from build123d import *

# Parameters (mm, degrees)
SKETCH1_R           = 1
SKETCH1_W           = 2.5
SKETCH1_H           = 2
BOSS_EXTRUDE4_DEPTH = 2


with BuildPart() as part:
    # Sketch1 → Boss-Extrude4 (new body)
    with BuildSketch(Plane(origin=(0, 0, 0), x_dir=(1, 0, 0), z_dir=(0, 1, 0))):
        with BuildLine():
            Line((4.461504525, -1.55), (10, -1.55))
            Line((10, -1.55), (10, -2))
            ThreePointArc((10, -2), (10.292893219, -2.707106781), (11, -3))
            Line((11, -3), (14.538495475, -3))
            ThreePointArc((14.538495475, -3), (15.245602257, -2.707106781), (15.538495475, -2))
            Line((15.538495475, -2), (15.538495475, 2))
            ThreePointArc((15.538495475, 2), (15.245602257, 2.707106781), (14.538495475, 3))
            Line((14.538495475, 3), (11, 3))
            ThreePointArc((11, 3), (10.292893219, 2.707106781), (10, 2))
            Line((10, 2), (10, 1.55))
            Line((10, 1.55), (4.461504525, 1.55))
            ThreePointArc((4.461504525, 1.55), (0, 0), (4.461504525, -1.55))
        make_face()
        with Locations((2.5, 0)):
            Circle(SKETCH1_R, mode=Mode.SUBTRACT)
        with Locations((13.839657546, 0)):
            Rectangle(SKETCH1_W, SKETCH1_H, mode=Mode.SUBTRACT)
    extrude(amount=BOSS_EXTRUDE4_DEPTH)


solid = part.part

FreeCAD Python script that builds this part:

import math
import FreeCAD as App
import Part
import Sketcher


def add_polygon(sketch, points):
    """Adds a closed chain of lines whose ends are joined by coincident constraints."""
    first, n = sketch.GeometryCount, len(points)
    for a, b in zip(points, points[1:] + points[:1]):
        sketch.addGeometry(Part.LineSegment(App.Vector(*a, 0), App.Vector(*b, 0)), False)
    for i in range(n):
        sketch.addConstraint(Sketcher.Constraint("Coincident", first + i, 2, first + (i + 1) % n, 1))

doc = App.newDocument("Part")
body = doc.addObject("PartDesign::Body", "Body")

# Sketch on XZ plane
sketch1 = body.newObject("Sketcher::SketchObject", "Sketch")
sketch1.AttachmentSupport = (doc.getObject("XZ_Plane"), [""])
sketch1.MapMode = "FlatFace"
sketch1.addGeometry(Part.LineSegment(App.Vector(4.461505, 1.55, 0), App.Vector(10, 1.55, 0)), False)  # 0
sketch1.addGeometry(Part.LineSegment(App.Vector(10, 1.55, 0), App.Vector(10, 2, 0)), False)  # 1
sketch1.addGeometry(Part.ArcOfCircle(Part.Circle(App.Vector(11, 2, 0), App.Vector(0, 0, 1), 1), math.radians(90), math.radians(180)), False)  # 2
sketch1.addGeometry(Part.LineSegment(App.Vector(11, 3, 0), App.Vector(14.538495, 3, 0)), False)  # 3
sketch1.addGeometry(Part.ArcOfCircle(Part.Circle(App.Vector(14.538495, 2, 0), App.Vector(0, 0, 1), 1), math.radians(0), math.radians(90)), False)  # 4
sketch1.addGeometry(Part.LineSegment(App.Vector(15.538495, 2, 0), App.Vector(15.538495, -2, 0)), False)  # 5
sketch1.addGeometry(Part.ArcOfCircle(Part.Circle(App.Vector(14.538495, -2, 0), App.Vector(0, 0, 1), 1), math.radians(-90), math.radians(0)), False)  # 6
sketch1.addGeometry(Part.LineSegment(App.Vector(14.538495, -3, 0), App.Vector(11, -3, 0)), False)  # 7
sketch1.addGeometry(Part.ArcOfCircle(Part.Circle(App.Vector(11, -2, 0), App.Vector(0, 0, 1), 1), math.radians(-180), math.radians(-90)), False)  # 8
sketch1.addGeometry(Part.LineSegment(App.Vector(10, -2, 0), App.Vector(10, -1.55, 0)), False)  # 9
sketch1.addGeometry(Part.LineSegment(App.Vector(10, -1.55, 0), App.Vector(4.461505, -1.55, 0)), False)  # 10
sketch1.addGeometry(Part.ArcOfCircle(Part.Circle(App.Vector(2.5, 0, 0), App.Vector(0, 0, 1), 2.5), math.radians(38.316134), math.radians(321.683866)), False)  # 11
sketch1.addGeometry(Part.Circle(App.Vector(2.5, 0, 0), App.Vector(0, 0, 1), 1), False)  # 12
add_polygon(sketch1, [(15.089658, 1), (12.589658, 1), (12.589658, -1), (15.089658, -1)])  # lines 13-16
sketch1.addConstraint([
    Sketcher.Constraint("Coincident", 0, 2, 1, 1),
    Sketcher.Constraint("Tangent", 1, 2, 2, 2),
    Sketcher.Constraint("Tangent", 2, 1, 3, 1),
    Sketcher.Constraint("Tangent", 3, 2, 4, 2),
    Sketcher.Constraint("Tangent", 4, 1, 5, 1),
    Sketcher.Constraint("Tangent", 5, 2, 6, 2),
    Sketcher.Constraint("Tangent", 6, 1, 7, 1),
    Sketcher.Constraint("Tangent", 7, 2, 8, 2),
    Sketcher.Constraint("Tangent", 8, 1, 9, 1),
    Sketcher.Constraint("Coincident", 9, 2, 10, 1),
    Sketcher.Constraint("Coincident", 10, 2, 11, 2),
    Sketcher.Constraint("Coincident", 11, 1, 0, 1),
    Sketcher.Constraint("Horizontal", 0),
    Sketcher.Constraint("Vertical", 1),
    Sketcher.Constraint("Horizontal", 3),
    Sketcher.Constraint("Vertical", 5),
    Sketcher.Constraint("Horizontal", 7),
    Sketcher.Constraint("Vertical", 9),
    Sketcher.Constraint("Horizontal", 10),
    Sketcher.Constraint("Horizontal", 13),
    Sketcher.Constraint("Vertical", 14),
    Sketcher.Constraint("Horizontal", 15),
    Sketcher.Constraint("Vertical", 16),
    Sketcher.Constraint("Coincident", 12, 3, 11, 3),
    Sketcher.Constraint("Equal", 2, 4),
    Sketcher.Constraint("Equal", 4, 6),
    Sketcher.Constraint("Equal", 6, 8),
    Sketcher.Constraint("Equal", 8, 12),
    Sketcher.Constraint("Symmetric", 2, 3, 8, 3, -1),
    Sketcher.Constraint("Symmetric", 10, 2, 11, 1, -1),
    Sketcher.Constraint("Diameter", 12, 2.0),
    Sketcher.Constraint("Radius", 11, 2.5),
    Sketcher.Constraint("DistanceY", 5, 2, 5, 1, 4.0),
    Sketcher.Constraint("DistanceY", 14, 2, 14, 1, 2.0),
    Sketcher.Constraint("DistanceX", 13, 2, 13, 1, 2.5),
    Sketcher.Constraint("DistanceX", -1, 1, 2, 3, 11.0),
    Sketcher.Constraint("DistanceY", -1, 1, 13, 2, 1.0),
    Sketcher.Constraint("DistanceY", 1, 1, 1, 2, 0.45),
    Sketcher.Constraint("DistanceX", -1, 1, 11, 3, 2.5),
    Sketcher.Constraint("DistanceX", 3, 1, 3, 2, 3.538495),
    Sketcher.Constraint("DistanceX", -1, 1, 13, 2, 12.589658),
])
pad1 = body.newObject("PartDesign::Pad", "Pad")
pad1.Profile = sketch1
pad1.Length = 2
pad1.Reversed = True

doc.recompute()
